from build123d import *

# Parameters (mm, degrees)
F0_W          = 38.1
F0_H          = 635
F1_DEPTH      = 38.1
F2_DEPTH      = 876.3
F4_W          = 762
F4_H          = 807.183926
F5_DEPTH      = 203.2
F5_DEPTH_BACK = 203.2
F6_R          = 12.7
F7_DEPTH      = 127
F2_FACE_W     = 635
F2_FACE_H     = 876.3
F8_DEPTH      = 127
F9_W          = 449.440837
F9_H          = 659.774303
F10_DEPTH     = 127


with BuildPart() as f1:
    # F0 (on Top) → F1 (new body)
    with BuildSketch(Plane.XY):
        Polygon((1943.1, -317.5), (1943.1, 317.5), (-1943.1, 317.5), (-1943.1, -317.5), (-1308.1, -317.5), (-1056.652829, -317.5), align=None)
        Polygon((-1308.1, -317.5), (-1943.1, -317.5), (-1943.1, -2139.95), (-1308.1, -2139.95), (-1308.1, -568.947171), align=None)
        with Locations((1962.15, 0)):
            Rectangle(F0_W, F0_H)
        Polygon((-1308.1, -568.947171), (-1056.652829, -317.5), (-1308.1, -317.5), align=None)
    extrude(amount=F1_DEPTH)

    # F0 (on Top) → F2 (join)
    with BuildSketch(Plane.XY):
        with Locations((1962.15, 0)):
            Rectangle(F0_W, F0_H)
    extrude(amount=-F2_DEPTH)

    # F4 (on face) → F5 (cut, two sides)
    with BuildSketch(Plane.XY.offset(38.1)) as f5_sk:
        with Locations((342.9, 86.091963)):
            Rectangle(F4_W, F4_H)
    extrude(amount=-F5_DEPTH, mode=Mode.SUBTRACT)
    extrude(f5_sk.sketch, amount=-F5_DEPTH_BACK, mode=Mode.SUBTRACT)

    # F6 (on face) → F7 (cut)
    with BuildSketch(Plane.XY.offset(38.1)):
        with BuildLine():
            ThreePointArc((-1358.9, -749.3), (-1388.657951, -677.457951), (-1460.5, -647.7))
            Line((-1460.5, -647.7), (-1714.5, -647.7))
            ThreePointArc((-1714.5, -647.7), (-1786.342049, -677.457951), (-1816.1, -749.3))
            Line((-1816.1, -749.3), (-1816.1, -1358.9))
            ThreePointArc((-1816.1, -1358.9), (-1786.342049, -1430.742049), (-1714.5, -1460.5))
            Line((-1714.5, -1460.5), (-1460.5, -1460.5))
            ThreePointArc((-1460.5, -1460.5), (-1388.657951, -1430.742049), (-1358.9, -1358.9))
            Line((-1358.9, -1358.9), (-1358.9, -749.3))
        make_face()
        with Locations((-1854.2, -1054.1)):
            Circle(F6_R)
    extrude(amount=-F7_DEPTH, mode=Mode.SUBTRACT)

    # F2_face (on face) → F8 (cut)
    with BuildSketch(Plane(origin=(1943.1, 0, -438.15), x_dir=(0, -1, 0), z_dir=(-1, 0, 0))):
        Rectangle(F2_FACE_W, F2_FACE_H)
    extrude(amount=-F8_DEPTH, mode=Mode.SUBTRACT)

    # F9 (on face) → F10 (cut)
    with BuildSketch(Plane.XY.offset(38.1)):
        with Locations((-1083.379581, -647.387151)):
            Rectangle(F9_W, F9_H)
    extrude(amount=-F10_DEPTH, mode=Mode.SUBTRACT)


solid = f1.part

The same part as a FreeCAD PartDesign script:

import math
import FreeCAD as App
import Part
import Sketcher

V = App.Vector
Q = App.Units.Quantity

doc = App.newDocument("Part")
body = doc.addObject("PartDesign::Body", "Body")
body.AllowCompound = True

# Sketch on XY plane
sketch1 = body.newObject("Sketcher::SketchObject", "Sketch")
sketch1.AttachmentSupport = (doc.getObject("XY_Plane"), [""])
sketch1.MapMode = "FlatFace"
sketch1.addGeometry([
    Part.LineSegment(V(-1943, 318, 0), V(-1943, -2140, 0)),  # 0
    Part.LineSegment(V(-1943, -2140, 0), V(-1308, -2140, 0)),  # 1
    Part.LineSegment(V(-1308, -2140, 0), V(-1308, -569, 0)),  # 2
    Part.LineSegment(V(-1308, -569, 0), V(-1057, -318, 0)),  # 3
    Part.LineSegment(V(-1057, -318, 0), V(1981, -318, 0)),  # 4
    Part.LineSegment(V(1981, -318, 0), V(1981, 318, 0)),  # 5
    Part.LineSegment(V(1981, 318, 0), V(-1943, 318, 0)),  # 6
], False)
sketch1.addConstraint([
    Sketcher.Constraint("Coincident", 0, 2, 1, 1),
    Sketcher.Constraint("Coincident", 1, 2, 2, 1),
    Sketcher.Constraint("Coincident", 2, 2, 3, 1),
    Sketcher.Constraint("Coincident", 3, 2, 4, 1),
    Sketcher.Constraint("Coincident", 4, 2, 5, 1),
    Sketcher.Constraint("Coincident", 5, 2, 6, 1),
    Sketcher.Constraint("Coincident", 6, 2, 0, 1),
    Sketcher.Constraint("Vertical", 0),
    Sketcher.Constraint("Horizontal", 1),
    Sketcher.Constraint("Vertical", 2),
    Sketcher.Constraint("Horizontal", 4),
    Sketcher.Constraint("Vertical", 5),
    Sketcher.Constraint("Horizontal", 6),
    Sketcher.Constraint("Equal", 1, 5),
    Sketcher.Constraint("DistanceX", 1, 1, 1, 2, Q("25 in")),
    Sketcher.Constraint("Distance", 3, Q("14 in")),
    Sketcher.Constraint("DistanceX", 6, 2, 6, 1, Q("154.5 in")),
    Sketcher.Constraint("DistanceX", -1, 1, 4, 2, Q("78 in")),
    Sketcher.Constraint("Angle", 3, Q("45 deg")),
    Sketcher.Constraint("DistanceY", 0, 2, 0, 1, Q("96.75 in")),
    Sketcher.Constraint("DistanceY", 3, 2, -1, 1, Q("12.5 in")),
])
pad1 = body.newObject("PartDesign::Pad", "Pad")
pad1.Profile = sketch1
pad1.Length = Q("1.5 in")

# Sketch on XY plane
sketch2 = body.newObject("Sketcher::SketchObject", "Sketch001")
sketch2.AttachmentSupport = (doc.getObject("XY_Plane"), [""])
sketch2.MapMode = "FlatFace"
sketch2.addGeometry([
    Part.LineSegment(V(1943, 318, 0), V(1943, -318, 0)),
    Part.LineSegment(V(1943, -318, 0), V(1981, -318, 0)),
    Part.LineSegment(V(1981, -318, 0), V(1981, 318, 0)),
    Part.LineSegment(V(1981, 318, 0), V(1943, 318, 0)),
], False)
sketch2.addConstraint([
    Sketcher.Constraint("Coincident", 0, 2, 1, 1),
    Sketcher.Constraint("Coincident", 1, 2, 2, 1),
    Sketcher.Constraint("Coincident", 2, 2, 3, 1),
    Sketcher.Constraint("Coincident", 3, 2, 0, 1),
    Sketcher.Constraint("Vertical", 0),
    Sketcher.Constraint("Horizontal", 1),
    Sketcher.Constraint("Vertical", 2),
    Sketcher.Constraint("Horizontal", 3),
    Sketcher.Constraint("DistanceY", 0, 2, 0, 1, Q("25 in")),
    Sketcher.Constraint("DistanceX", 1, 1, 1, 2, Q("1.5 in")),
    Sketcher.Constraint("DistanceX", -1, 1, 1, 2, Q("78 in")),
    Sketcher.Constraint("DistanceY", 0, 2, -1, 1, Q("12.5 in")),
])
pad2 = body.newObject("PartDesign::Pad", "Pad001")
pad2.Profile = sketch2
pad2.Length = Q("34.5 in")
pad2.Reversed = True

# Sketch on XY plane
sketch3 = body.newObject("Sketcher::SketchObject", "Sketch002")
sketch3.AttachmentSupport = (doc.getObject("XY_Plane"), [""])
sketch3.MapMode = "FlatFace"
sketch3.AttachmentOffset = App.Placement(V(0, 0, 1.5 * 25.4), App.Rotation())
sketch3.addGeometry([
    Part.LineSegment(V(-38, 490, 0), V(-38, -318, 0)),
    Part.LineSegment(V(-38, -318, 0), V(724, -318, 0)),
    Part.LineSegment(V(724, -318, 0), V(724, 490, 0)),
    Part.LineSegment(V(724, 490, 0), V(-38, 490, 0)),
], False)
sketch3.addConstraint([
    Sketcher.Constraint("Coincident", 0, 2, 1, 1),
    Sketcher.Constraint("Coincident", 1, 2, 2, 1),
    Sketcher.Constraint("Coincident", 2, 2, 3, 1),
    Sketcher.Constraint("Coincident", 3, 2, 0, 1),
    Sketcher.Constraint("Vertical", 0),
    Sketcher.Constraint("Horizontal", 1),
    Sketcher.Constraint("Vertical", 2),
    Sketcher.Constraint("Horizontal", 3),
    Sketcher.Constraint("DistanceX", 1, 1, 1, 2, Q("30 in")),
    Sketcher.Constraint("DistanceX", 0, 2, -1, 1, Q("1.5 in")),
    Sketcher.Constraint("DistanceY", 0, 2, -1, 1, Q("12.5 in")),
    Sketcher.Constraint("DistanceY", 0, 2, 0, 1, Q("807.183926 mm")),
])
pocket1 = body.newObject("PartDesign::Pocket", "Pocket")
pocket1.Profile = sketch3
pocket1.Length = Q("8 in")
pocket2 = body.newObject("PartDesign::Pocket", "Pocket001")
pocket2.Profile = sketch3
pocket2.Length = Q("8 in")

# Sketch on XY plane
sketch4 = body.newObject("Sketcher::SketchObject", "Sketch003")
sketch4.AttachmentSupport = (doc.getObject("XY_Plane"), [""])
sketch4.MapMode = "FlatFace"
sketch4.AttachmentOffset = App.Placement(V(0, 0, 1.5 * 25.4), App.Rotation())
sketch4.addGeometry([
    Part.ArcOfCircle(Part.Circle(V(-1460, -749, 0), V(0, 0, 1), 102), math.radians(0), math.radians(90)),  # 0
    Part.LineSegment(V(-1460, -648, 0), V(-1714, -648, 0)),  # 1
    Part.ArcOfCircle(Part.Circle(V(-1715, -749, 0), V(0, 0, 1), 102), math.radians(90), math.radians(180)),  # 2
    Part.LineSegment(V(-1816, -749, 0), V(-1816, -1359, 0)),  # 3
    Part.ArcOfCircle(Part.Circle(V(-1715, -1359, 0), V(0, 0, 1), 102), math.radians(180), math.radians(270)),  # 4
    Part.LineSegment(V(-1714, -1460, 0), V(-1460, -1460, 0)),  # 5
    Part.ArcOfCircle(Part.Circle(V(-1460, -1359, 0), V(0, 0, 1), 102), math.radians(-90), math.radians(0)),  # 6
    Part.LineSegment(V(-1359, -1359, 0), V(-1359, -749, 0)),  # 7
    Part.Circle(V(-1854, -1054, 0), V(0, 0, 1), 13),  # 8
], False)
sketch4.addConstraint([
    Sketcher.Constraint("Tangent", 0, 2, 1, 1),
    Sketcher.Constraint("Tangent", 1, 2, 2, 1),
    Sketcher.Constraint("Tangent", 2, 2, 3, 1),
    Sketcher.Constraint("Tangent", 3, 2, 4, 1),
    Sketcher.Constraint("Tangent", 4, 2, 5, 1),
    Sketcher.Constraint("Tangent", 5, 2, 6, 1),
    Sketcher.Constraint("Tangent", 6, 2, 7, 1),
    Sketcher.Constraint("Tangent", 7, 2, 0, 1),
    Sketcher.Constraint("Horizontal", 1),
    Sketcher.Constraint("Vertical", 3),
    Sketcher.Constraint("Horizontal", 5),
    Sketcher.Constraint("Vertical", 7),
    Sketcher.Constraint("Equal", 0, 2),
    Sketcher.Constraint("Equal", 2, 4),
    Sketcher.Constraint("Equal", 4, 6),
    Sketcher.Constraint("Diameter", 8, Q("1 in")),
    Sketcher.Constraint("Radius", 0, Q("4 in")),
    Sketcher.Constraint("DistanceX", 1, 2, 1, 1, Q("10 in")),
    Sketcher.Constraint("DistanceY", 3, 2, 3, 1, Q("24 in")),
    Sketcher.Constraint("DistanceX", 8, 3, -1, 1, Q("73 in")),
    Sketcher.Constraint("DistanceY", 8, 3, 2, 3, Q("12 in")),
    Sketcher.Constraint("DistanceX", 0, 3, -1, 1, Q("57.5 in")),
    Sketcher.Constraint("DistanceY", 0, 3, -1, 1, Q("29.5 in")),
])
pocket3 = body.newObject("PartDesign::Pocket", "Pocket002")
pocket3.Profile = sketch4
pocket3.Length = Q("5 in")

# Sketch on YZ plane
sketch5 = body.newObject("Sketcher::SketchObject", "Sketch004")
sketch5.AttachmentSupport = (doc.getObject("YZ_Plane"), [""])
sketch5.MapMode = "FlatFace"
sketch5.AttachmentOffset = App.Placement(V(0, 0, 76.5 * 25.4), App.Rotation())
sketch5.addGeometry([
    Part.LineSegment(V(318, 0, 0), V(318, -876, 0)),
    Part.LineSegment(V(318, -876, 0), V(-318, -876, 0)),
    Part.LineSegment(V(-318, -876, 0), V(-318, 0, 0)),
    Part.LineSegment(V(-318, 0, 0), V(318, 0, 0)),
], False)
sketch5.addConstraint([
    Sketcher.Constraint("Coincident", 0, 2, 1, 1),
    Sketcher.Constraint("Coincident", 1, 2, 2, 1),
    Sketcher.Constraint("Coincident", 2, 2, 3, 1),
    Sketcher.Constraint("Coincident", 3, 2, 0, 1),
    Sketcher.Constraint("Vertical", 0),
    Sketcher.Constraint("Horizontal", 1),
    Sketcher.Constraint("Vertical", 2),
    Sketcher.Constraint("Horizontal", 3),
    Sketcher.Constraint("Symmetric", 2, 2, 3, 2, -1, 1),
    Sketcher.Constraint("DistanceX", 1, 2, 1, 1, Q("25 in")),
    Sketcher.Constraint("DistanceY", 0, 2, 0, 1, Q("34.5 in")),
])
pocket4 = body.newObject("PartDesign::Pocket", "Pocket003")
pocket4.Profile = sketch5
pocket4.Length = Q("5 in")
pocket4.Reversed = True

# Sketch on XY plane
sketch6 = body.newObject("Sketcher::SketchObject", "Sketch005")
sketch6.AttachmentSupport = (doc.getObject("XY_Plane"), [""])
sketch6.MapMode = "FlatFace"
sketch6.AttachmentOffset = App.Placement(V(0, 0, 1.5 * 25.4), App.Rotation())
sketch6.addGeometry([
    Part.LineSegment(V(-1308, -317, 0), V(-1308, -977, 0)),
    Part.LineSegment(V(-1308, -977, 0), V(-859, -977, 0)),
    Part.LineSegment(V(-859, -977, 0), V(-859, -317, 0)),
    Part.LineSegment(V(-859, -317, 0), V(-1308, -317, 0)),
], False)
sketch6.addConstraint([
    Sketcher.Constraint("Coincident", 0, 2, 1, 1),
    Sketcher.Constraint("Coincident", 1, 2, 2, 1),
    Sketcher.Constraint("Coincident", 2, 2, 3, 1),
    Sketcher.Constraint("Coincident", 3, 2, 0, 1),
    Sketcher.Constraint("Vertical", 0),
    Sketcher.Constraint("Horizontal", 1),
    Sketcher.Constraint("Vertical", 2),
    Sketcher.Constraint("Horizontal", 3),
    Sketcher.Constraint("DistanceX", 0, 2, -1, 1, Q("51.5 in")),
    Sketcher.Constraint("DistanceY", 2, 2, -1, 1, Q("12.5 in")),
    Sketcher.Constraint("DistanceX", 1, 1, 1, 2, Q("449.440837 mm")),
    Sketcher.Constraint("DistanceY", 0, 2, 0, 1, Q("659.774303 mm")),
])
pocket5 = body.newObject("PartDesign::Pocket", "Pocket004")
pocket5.Profile = sketch6
pocket5.Length = Q("5 in")

doc.recompute()
